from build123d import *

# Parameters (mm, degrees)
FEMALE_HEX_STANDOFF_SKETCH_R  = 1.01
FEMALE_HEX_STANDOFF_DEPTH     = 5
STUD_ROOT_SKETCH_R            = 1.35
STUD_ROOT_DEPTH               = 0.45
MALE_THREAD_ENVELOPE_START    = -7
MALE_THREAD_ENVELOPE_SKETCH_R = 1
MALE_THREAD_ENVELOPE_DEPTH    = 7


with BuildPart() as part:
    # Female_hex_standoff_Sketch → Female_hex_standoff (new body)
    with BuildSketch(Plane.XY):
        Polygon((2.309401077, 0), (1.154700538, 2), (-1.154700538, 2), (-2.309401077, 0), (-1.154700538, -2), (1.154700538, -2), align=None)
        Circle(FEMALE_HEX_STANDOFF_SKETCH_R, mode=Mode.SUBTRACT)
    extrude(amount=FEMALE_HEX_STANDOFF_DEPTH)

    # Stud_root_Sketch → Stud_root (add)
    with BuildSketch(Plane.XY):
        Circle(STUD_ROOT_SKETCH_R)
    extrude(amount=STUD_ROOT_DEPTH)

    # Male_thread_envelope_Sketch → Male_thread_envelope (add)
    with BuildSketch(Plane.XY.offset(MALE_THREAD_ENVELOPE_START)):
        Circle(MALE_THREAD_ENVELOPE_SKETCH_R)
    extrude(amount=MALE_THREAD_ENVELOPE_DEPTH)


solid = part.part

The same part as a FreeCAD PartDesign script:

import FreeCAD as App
import Part
import Sketcher
Q = App.Units.Quantity

doc = App.newDocument("Part")
body = doc.addObject("PartDesign::Body", "Body")

sketch1 = body.newObject("Sketcher::SketchObject", "Sketch")
sketch1.AttachmentSupport = (doc.getObject("XY_Plane"), [""])
sketch1.MapMode = "FlatFace"
sketch1.addGeometry([
    Part.LineSegment(App.Vector(2.3, 0, 0), App.Vector(1.2, 2, 0)),
    Part.LineSegment(App.Vector(1.2, 2, 0), App.Vector(-1.2, 2, 0)),
    Part.LineSegment(App.Vector(-1.2, 2, 0), App.Vector(-2.3, 0, 0)),
    Part.LineSegment(App.Vector(-2.3, 0, 0), App.Vector(-1.2, -2, 0)),
    Part.LineSegment(App.Vector(-1.2, -2, 0), App.Vector(1.2, -2, 0)),
    Part.LineSegment(App.Vector(1.2, -2, 0), App.Vector(2.3, 0, 0)),
    Part.Circle(App.Vector(0, 0, 0), App.Vector(0, 0, 1), 1),
], False)
sketch1.addConstraint([
    Sketcher.Constraint("Coincident", 0, 2, 1, 1),
    Sketcher.Constraint("Coincident", 1, 2, 2, 1),
    Sketcher.Constraint("Coincident", 2, 2, 3, 1),
    Sketcher.Constraint("Coincident", 3, 2, 4, 1),
    Sketcher.Constraint("Coincident", 4, 2, 5, 1),
    Sketcher.Constraint("Coincident", 5, 2, 0, 1),
    Sketcher.Constraint("Horizontal", 1),
    Sketcher.Constraint("Horizontal", 4),
    Sketcher.Constraint("Coincident", 6, 3, -1, 1),
    Sketcher.Constraint("Symmetric", 0, 2, 3, 2, -1, 1),
    Sketcher.Constraint("Symmetric", 2, 2, 5, 2, -1, 1),
    Sketcher.Constraint("PointOnObject", 2, 2, -1),
    Sketcher.Constraint("Parallel", 2, 5),
    Sketcher.Constraint("Vertical", 1, 2, 3, 2),
    Sketcher.Constraint("Diameter", 6, 2.02),
    Sketcher.Constraint("Angle", 0, Q("120 deg")),
    Sketcher.Constraint("DistanceY", -1, 1, 0, 2, 2.0),
    Sketcher.Constraint("DistanceX", 1, 2, 1, 1, 2.309401),
])
pad1 = body.newObject("PartDesign::Pad", "Pad")
pad1.Profile = sketch1
pad1.Length = 5

sketch2 = body.newObject("Sketcher::SketchObject", "Sketch001")
sketch2.AttachmentSupport = (doc.getObject("XY_Plane"), [""])
sketch2.MapMode = "FlatFace"
sketch2.addGeometry(Part.Circle(App.Vector(0, 0, 0), App.Vector(0, 0, 1), 1.4), False)
sketch2.addConstraint([
    Sketcher.Constraint("Coincident", 0, 3, -1, 1),
    Sketcher.Constraint("Diameter", 0, 2.7),
])
pad2 = body.newObject("PartDesign::Pad", "Pad001")
pad2.Profile = sketch2
pad2.Length = 0.45

sketch3 = body.newObject("Sketcher::SketchObject", "Sketch002")
sketch3.AttachmentSupport = (doc.getObject("XY_Plane"), [""])
sketch3.MapMode = "FlatFace"
sketch3.AttachmentOffset = App.Placement(App.Vector(0, 0, -7), App.Rotation())
sketch3.addGeometry(Part.Circle(App.Vector(0, 0, 0), App.Vector(0, 0, 1), 1), False)
sketch3.addConstraint([
    Sketcher.Constraint("Coincident", 0, 3, -1, 1),
    Sketcher.Constraint("Diameter", 0, 2.0),
])
pad3 = body.newObject("PartDesign::Pad", "Pad002")
pad3.Profile = sketch3
pad3.Length = 7

doc.recompute()
